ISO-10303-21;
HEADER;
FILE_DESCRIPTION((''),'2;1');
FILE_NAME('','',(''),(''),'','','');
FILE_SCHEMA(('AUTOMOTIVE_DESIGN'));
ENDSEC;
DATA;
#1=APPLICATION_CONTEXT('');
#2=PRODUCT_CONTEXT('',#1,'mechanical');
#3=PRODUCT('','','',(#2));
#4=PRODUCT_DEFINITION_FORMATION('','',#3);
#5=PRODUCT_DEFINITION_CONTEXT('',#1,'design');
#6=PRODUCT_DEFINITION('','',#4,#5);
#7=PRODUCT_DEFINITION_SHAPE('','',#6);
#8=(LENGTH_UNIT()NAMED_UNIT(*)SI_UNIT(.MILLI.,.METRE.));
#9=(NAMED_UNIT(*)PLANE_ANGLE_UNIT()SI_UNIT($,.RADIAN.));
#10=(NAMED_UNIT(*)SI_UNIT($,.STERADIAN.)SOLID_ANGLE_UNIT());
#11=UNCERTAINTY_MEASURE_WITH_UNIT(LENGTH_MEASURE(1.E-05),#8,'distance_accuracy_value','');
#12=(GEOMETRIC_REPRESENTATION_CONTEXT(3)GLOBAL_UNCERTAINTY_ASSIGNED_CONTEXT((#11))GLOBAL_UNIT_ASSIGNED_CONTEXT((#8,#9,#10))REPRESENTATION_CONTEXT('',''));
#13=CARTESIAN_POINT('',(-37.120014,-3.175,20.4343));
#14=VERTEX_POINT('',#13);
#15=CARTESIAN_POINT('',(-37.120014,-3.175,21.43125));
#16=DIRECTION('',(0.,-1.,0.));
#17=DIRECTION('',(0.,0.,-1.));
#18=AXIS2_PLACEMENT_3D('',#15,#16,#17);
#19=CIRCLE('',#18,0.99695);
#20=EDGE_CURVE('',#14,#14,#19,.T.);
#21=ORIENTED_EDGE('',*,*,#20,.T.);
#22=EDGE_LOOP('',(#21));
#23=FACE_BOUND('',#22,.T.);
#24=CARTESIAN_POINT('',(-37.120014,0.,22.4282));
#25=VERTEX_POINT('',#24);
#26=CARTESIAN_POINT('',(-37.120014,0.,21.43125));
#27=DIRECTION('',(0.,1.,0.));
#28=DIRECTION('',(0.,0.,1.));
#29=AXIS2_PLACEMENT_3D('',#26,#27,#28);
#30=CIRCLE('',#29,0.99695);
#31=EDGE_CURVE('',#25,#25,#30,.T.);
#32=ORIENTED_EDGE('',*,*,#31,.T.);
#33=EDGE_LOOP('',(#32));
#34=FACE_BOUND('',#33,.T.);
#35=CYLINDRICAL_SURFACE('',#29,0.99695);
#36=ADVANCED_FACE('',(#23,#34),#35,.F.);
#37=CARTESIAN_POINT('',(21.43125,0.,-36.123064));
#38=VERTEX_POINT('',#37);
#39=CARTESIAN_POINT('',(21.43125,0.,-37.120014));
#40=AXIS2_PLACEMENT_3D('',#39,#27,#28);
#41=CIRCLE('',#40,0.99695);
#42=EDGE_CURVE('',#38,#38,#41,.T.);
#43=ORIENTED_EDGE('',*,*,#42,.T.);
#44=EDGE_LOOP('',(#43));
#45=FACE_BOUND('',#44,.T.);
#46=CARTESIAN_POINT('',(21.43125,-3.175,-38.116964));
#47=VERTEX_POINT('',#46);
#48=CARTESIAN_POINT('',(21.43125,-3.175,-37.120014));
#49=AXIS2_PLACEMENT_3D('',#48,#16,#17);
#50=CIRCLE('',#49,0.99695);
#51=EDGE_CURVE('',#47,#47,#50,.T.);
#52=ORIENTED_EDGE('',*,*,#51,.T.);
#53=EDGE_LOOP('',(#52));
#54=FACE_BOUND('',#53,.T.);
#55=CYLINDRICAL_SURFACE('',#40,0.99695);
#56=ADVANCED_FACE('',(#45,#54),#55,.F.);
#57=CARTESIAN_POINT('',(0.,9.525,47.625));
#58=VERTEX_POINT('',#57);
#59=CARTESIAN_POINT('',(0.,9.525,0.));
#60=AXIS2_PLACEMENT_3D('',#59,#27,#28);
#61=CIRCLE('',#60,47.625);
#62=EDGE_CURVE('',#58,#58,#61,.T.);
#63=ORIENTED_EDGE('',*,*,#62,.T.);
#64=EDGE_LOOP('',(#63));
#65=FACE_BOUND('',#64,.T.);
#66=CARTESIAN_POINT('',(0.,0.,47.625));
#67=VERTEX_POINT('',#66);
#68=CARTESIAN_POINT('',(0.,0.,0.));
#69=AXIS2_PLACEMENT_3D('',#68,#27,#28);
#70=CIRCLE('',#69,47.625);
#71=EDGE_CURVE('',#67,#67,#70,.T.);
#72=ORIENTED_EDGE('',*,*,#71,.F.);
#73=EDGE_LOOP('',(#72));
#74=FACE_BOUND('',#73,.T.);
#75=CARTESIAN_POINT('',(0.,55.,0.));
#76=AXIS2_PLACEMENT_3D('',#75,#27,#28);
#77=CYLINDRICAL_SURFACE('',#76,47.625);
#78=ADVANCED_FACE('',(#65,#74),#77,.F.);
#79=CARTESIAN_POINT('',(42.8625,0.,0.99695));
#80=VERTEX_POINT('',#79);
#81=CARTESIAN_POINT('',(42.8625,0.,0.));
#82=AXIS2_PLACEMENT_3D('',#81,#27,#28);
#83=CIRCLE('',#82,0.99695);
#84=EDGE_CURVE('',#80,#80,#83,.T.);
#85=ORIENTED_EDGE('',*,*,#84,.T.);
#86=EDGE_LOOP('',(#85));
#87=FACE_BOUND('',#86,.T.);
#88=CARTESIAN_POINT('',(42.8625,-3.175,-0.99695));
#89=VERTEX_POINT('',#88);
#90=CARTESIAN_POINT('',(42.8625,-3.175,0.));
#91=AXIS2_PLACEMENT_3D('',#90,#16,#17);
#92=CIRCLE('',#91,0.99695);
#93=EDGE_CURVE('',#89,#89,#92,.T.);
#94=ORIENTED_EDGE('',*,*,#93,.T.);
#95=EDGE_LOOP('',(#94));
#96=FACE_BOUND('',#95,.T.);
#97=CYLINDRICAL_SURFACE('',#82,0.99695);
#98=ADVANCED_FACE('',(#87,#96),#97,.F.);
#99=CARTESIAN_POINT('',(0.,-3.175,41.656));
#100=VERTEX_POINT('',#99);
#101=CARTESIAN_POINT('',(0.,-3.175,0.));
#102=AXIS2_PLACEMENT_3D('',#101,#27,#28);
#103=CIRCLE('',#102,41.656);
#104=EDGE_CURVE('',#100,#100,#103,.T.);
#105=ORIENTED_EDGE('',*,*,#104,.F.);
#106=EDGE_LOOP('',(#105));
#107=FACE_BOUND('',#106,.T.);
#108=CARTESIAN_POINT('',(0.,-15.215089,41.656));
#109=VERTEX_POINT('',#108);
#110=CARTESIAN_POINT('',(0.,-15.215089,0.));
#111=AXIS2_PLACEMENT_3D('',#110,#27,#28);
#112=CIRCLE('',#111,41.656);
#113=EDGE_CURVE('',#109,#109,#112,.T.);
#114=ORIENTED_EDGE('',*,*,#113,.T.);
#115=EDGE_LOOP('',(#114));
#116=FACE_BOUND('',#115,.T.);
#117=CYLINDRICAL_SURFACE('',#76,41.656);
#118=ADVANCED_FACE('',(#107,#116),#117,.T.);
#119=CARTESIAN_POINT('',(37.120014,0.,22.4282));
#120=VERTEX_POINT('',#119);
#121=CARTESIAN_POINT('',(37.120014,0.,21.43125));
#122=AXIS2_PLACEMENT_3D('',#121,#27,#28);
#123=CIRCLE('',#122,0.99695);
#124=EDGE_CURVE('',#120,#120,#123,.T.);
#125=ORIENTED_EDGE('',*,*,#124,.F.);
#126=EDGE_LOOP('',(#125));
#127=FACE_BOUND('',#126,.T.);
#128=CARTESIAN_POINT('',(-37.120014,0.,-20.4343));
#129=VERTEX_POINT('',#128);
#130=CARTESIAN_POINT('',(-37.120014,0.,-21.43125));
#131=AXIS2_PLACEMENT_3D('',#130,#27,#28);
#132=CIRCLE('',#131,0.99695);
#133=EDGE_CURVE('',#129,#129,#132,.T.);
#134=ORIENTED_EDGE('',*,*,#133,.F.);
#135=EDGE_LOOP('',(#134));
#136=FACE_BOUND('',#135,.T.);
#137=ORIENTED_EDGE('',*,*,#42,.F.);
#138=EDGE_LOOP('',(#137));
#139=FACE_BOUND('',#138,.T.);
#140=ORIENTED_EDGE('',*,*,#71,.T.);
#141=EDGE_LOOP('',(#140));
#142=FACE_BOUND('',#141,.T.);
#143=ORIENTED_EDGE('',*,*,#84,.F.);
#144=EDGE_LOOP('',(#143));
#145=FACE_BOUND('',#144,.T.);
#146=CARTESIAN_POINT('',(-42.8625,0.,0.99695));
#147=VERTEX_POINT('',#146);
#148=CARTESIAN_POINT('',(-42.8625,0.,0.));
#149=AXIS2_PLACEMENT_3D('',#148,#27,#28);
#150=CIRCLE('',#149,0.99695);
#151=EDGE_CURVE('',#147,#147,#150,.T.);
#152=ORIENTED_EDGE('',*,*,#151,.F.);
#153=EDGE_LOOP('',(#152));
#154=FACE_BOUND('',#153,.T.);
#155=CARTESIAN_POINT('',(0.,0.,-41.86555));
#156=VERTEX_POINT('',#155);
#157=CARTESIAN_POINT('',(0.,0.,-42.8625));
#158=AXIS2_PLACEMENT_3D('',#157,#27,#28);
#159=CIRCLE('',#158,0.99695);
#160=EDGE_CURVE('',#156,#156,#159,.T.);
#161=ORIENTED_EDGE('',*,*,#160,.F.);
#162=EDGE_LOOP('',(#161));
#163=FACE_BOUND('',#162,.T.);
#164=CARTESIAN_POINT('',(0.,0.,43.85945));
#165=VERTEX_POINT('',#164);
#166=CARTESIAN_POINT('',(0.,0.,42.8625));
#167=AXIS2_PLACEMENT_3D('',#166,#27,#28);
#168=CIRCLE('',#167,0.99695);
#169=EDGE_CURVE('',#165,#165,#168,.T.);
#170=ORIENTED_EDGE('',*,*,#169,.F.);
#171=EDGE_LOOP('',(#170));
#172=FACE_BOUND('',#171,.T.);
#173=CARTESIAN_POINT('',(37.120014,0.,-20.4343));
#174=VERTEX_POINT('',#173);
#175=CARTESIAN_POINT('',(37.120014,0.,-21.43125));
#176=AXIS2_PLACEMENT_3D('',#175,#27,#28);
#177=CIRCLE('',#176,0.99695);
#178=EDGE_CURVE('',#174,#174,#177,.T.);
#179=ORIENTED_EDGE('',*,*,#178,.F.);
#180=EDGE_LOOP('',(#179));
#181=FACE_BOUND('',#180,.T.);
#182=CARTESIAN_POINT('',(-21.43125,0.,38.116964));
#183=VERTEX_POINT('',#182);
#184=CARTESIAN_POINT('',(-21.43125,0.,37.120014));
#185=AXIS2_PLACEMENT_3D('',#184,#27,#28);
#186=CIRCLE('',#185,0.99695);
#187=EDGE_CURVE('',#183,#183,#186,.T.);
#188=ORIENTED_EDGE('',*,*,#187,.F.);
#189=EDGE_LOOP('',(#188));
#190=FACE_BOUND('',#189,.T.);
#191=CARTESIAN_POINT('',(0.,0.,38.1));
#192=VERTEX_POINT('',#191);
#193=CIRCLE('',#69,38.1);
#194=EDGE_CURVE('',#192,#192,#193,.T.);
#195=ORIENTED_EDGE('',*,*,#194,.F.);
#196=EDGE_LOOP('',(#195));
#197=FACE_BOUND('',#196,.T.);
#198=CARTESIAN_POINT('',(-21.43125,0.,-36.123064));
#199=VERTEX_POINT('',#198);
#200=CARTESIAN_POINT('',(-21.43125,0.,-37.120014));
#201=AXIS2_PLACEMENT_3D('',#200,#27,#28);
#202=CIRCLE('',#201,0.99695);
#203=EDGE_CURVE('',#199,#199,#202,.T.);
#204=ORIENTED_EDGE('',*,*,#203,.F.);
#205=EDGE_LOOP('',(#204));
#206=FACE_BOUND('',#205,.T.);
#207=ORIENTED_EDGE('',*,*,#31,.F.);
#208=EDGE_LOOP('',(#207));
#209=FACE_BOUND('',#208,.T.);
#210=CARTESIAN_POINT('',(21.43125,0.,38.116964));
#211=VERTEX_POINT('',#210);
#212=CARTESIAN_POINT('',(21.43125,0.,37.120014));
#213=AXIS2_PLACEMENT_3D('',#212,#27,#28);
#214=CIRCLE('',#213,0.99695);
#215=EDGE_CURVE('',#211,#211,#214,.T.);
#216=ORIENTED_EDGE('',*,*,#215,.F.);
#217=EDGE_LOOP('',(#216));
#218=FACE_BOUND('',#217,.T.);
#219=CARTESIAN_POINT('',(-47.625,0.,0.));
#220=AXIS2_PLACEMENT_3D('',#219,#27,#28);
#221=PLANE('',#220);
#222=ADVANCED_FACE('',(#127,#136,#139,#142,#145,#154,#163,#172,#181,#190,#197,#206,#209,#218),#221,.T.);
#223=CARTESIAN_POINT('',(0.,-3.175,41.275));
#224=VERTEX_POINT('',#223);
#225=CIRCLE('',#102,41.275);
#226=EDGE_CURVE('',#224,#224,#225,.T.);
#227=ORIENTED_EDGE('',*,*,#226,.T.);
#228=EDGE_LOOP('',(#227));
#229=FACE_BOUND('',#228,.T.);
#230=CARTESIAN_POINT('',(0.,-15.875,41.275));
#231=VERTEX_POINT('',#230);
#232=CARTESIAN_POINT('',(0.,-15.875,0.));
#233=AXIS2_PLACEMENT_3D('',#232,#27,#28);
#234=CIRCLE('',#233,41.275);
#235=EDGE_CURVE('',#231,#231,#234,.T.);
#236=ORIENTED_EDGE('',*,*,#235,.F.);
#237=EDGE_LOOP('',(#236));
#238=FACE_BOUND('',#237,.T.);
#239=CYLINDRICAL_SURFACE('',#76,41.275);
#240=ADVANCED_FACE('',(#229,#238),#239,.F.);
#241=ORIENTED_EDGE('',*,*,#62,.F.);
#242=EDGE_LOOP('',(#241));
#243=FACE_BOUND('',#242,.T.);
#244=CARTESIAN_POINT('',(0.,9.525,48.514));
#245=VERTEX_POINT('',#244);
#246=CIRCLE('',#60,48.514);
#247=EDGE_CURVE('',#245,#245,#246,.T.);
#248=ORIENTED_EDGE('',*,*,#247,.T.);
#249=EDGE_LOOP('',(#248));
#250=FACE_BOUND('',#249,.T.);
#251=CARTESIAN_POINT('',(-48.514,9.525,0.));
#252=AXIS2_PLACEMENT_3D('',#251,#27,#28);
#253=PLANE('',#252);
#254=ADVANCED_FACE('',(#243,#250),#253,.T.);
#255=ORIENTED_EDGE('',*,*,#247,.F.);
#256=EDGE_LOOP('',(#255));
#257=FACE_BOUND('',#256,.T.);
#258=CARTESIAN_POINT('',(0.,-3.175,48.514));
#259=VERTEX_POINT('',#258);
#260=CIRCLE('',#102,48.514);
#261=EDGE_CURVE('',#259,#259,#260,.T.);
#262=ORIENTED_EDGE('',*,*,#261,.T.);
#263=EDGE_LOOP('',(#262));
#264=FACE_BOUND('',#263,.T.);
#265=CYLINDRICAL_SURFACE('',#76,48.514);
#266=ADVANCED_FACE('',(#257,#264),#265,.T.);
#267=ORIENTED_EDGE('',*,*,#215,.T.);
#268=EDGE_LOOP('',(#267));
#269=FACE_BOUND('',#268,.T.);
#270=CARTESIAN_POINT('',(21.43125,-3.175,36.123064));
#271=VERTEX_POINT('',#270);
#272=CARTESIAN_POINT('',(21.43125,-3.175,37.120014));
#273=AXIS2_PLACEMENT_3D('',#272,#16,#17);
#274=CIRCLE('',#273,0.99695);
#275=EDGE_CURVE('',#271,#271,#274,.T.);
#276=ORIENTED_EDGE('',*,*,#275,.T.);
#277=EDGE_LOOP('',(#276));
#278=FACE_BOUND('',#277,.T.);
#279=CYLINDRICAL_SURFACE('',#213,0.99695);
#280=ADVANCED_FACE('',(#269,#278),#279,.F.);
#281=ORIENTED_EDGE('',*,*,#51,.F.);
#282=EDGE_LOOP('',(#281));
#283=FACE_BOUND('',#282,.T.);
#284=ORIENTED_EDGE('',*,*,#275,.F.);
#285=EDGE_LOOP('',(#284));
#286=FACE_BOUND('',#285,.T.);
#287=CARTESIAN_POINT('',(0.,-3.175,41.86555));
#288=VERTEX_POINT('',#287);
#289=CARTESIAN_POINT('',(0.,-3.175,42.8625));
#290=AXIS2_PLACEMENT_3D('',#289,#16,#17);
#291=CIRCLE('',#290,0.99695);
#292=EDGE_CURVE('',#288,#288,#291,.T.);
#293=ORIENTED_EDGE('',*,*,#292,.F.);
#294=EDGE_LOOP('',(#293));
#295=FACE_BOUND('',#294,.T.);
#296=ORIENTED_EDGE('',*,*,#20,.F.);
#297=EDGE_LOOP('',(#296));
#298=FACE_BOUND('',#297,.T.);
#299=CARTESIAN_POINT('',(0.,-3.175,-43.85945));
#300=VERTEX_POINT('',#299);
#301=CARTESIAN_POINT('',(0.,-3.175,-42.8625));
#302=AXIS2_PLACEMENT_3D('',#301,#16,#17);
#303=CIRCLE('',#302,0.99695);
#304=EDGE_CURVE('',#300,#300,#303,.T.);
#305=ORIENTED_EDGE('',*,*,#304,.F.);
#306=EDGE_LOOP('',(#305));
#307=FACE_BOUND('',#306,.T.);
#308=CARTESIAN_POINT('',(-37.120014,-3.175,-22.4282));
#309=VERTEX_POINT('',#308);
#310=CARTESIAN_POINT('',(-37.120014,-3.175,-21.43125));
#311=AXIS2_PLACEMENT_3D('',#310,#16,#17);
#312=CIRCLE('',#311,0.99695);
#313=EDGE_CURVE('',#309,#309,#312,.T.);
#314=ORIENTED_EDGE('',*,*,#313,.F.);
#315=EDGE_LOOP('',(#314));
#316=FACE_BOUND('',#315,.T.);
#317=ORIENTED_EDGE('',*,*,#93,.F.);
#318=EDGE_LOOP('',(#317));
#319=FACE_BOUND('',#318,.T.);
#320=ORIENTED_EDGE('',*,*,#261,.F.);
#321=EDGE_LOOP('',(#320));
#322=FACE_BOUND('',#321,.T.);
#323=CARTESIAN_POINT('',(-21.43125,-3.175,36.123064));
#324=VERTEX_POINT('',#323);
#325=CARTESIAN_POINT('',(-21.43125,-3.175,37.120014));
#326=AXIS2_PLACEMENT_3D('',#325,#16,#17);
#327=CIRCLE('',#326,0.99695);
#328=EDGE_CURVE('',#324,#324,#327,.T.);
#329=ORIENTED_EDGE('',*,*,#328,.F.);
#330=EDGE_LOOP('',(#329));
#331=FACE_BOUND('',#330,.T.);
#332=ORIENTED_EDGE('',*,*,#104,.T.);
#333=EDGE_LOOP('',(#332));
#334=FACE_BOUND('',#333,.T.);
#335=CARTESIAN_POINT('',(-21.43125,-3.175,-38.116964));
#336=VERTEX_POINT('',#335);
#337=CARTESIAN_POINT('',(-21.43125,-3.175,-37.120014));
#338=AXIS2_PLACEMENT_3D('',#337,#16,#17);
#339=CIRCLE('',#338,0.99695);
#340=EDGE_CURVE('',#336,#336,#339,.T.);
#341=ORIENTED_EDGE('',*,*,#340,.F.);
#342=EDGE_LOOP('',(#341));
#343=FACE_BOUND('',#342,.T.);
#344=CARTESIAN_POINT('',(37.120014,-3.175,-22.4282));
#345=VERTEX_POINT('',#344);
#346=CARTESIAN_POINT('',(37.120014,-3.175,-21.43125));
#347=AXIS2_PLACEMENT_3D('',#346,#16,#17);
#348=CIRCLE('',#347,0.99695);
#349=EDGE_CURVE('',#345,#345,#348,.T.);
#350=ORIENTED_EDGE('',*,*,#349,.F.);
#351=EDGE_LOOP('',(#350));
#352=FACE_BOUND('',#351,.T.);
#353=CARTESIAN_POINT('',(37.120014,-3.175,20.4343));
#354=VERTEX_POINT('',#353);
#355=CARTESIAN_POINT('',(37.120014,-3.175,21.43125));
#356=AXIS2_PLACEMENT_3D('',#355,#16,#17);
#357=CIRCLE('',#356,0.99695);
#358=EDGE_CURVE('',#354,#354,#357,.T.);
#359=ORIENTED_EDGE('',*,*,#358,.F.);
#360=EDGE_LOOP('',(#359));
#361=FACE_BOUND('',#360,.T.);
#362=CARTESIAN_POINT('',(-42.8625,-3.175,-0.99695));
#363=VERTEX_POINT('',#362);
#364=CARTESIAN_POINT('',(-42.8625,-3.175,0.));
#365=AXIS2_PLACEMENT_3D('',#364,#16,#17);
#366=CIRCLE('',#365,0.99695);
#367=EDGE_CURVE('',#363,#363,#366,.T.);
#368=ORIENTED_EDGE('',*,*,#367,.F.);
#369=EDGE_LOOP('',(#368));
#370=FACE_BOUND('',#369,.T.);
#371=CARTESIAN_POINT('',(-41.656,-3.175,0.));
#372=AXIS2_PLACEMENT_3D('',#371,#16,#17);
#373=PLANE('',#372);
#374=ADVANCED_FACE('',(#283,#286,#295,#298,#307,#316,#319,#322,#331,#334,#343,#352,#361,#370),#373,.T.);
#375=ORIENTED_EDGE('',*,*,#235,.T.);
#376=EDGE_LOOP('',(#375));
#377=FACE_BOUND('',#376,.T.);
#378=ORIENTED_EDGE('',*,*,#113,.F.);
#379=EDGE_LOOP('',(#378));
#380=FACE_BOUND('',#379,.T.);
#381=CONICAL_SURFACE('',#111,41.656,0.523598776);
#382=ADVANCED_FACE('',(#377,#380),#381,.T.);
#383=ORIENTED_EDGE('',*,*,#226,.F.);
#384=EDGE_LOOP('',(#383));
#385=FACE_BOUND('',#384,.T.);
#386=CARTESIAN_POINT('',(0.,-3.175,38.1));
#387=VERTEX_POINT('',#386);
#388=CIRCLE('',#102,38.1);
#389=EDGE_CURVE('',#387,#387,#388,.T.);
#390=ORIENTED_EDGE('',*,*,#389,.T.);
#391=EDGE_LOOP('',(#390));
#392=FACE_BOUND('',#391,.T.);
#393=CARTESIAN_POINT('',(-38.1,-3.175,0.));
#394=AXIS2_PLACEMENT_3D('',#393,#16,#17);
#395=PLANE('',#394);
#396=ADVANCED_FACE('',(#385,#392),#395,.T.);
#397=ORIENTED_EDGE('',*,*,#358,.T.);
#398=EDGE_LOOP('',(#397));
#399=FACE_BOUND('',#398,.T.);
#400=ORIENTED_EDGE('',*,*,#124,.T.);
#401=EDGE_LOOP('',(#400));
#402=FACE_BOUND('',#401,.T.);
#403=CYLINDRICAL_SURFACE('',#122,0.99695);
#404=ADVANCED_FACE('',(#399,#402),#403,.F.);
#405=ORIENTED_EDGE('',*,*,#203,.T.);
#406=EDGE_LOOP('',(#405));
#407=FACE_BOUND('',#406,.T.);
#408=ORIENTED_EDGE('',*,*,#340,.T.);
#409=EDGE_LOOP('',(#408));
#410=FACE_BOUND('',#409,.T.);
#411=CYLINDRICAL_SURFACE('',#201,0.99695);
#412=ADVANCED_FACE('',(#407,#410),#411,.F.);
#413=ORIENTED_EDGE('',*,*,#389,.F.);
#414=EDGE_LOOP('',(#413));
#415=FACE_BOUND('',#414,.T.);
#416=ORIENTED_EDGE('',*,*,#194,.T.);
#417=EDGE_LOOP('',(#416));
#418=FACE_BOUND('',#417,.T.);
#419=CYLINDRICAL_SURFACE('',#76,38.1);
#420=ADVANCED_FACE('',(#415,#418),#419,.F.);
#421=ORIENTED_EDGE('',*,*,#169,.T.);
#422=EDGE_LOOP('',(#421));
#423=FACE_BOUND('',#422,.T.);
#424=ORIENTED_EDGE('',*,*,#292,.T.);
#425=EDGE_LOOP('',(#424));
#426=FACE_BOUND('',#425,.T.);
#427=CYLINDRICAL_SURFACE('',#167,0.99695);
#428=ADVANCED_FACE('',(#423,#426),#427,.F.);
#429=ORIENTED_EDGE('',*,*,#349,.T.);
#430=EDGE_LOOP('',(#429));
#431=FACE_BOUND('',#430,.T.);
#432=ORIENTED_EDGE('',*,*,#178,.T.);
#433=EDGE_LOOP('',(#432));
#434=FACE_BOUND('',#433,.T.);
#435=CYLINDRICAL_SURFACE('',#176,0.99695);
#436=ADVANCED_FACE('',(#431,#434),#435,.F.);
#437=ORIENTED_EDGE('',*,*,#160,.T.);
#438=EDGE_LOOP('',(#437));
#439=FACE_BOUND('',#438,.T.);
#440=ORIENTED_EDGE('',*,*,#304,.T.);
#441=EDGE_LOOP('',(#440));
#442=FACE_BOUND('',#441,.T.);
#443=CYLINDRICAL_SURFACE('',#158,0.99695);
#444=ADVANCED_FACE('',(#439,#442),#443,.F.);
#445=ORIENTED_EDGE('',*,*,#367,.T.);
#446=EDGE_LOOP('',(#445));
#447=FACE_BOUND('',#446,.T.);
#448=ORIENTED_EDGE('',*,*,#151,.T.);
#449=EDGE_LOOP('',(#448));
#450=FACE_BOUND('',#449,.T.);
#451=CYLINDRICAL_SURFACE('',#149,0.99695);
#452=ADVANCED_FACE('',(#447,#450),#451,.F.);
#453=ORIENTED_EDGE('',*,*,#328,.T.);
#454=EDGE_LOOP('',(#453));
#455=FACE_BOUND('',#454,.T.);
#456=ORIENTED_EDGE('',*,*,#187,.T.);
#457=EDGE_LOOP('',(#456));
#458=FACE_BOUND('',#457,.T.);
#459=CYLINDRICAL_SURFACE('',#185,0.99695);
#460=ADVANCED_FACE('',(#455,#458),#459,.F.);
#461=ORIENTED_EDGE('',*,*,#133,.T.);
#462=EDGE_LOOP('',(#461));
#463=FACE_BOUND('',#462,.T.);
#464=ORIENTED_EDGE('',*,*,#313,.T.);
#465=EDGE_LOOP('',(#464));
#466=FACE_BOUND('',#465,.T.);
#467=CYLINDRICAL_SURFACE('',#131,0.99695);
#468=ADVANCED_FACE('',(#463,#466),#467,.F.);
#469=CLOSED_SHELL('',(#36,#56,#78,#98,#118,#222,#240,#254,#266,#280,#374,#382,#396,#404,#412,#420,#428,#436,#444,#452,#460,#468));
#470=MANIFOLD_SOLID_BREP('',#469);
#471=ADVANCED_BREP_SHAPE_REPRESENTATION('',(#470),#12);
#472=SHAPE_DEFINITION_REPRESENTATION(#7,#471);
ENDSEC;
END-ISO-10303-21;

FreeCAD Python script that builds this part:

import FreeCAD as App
import Part
import Sketcher

V = App.Vector
Q = App.Units.Quantity

doc = App.newDocument("Part")
body = doc.addObject("PartDesign::Body", "Body")

sketch1 = body.newObject("Sketcher::SketchObject", "Sketch")
sketch1.AttachmentSupport = (doc.getObject("XY_Plane"), [""])
sketch1.MapMode = "FlatFace"
sketch1.addGeometry(Part.LineSegment(V(-38.1, -3.175, 0), V(-38.1, 0, 0)), False)
sketch1.addGeometry(Part.LineSegment(V(-38.1, 0, 0), V(-47.625, 0, 0)), False)
sketch1.addGeometry(Part.LineSegment(V(-47.625, 0, 0), V(-47.625, 9.525, 0)), False)
sketch1.addGeometry(Part.LineSegment(V(-47.625, 9.525, 0), V(-48.514, 9.525, 0)), False)
sketch1.addGeometry(Part.LineSegment(V(-48.514, 9.525, 0), V(-48.514, -3.175, 0)), False)
sketch1.addGeometry(Part.LineSegment(V(-48.514, -3.175, 0), V(-41.656, -3.175, 0)), False)
sketch1.addGeometry(Part.LineSegment(V(-41.656, -3.175, 0), V(-41.656, -15.215089, 0)), False)
sketch1.addGeometry(Part.LineSegment(V(-41.656, -15.215089, 0), V(-41.275, -15.875, 0)), False)
sketch1.addGeometry(Part.LineSegment(V(-41.275, -15.875, 0), V(-41.275, -3.175, 0)), False)
sketch1.addGeometry(Part.LineSegment(V(-41.275, -3.175, 0), V(-38.1, -3.175, 0)), False)
sketch1.addConstraint(Sketcher.Constraint("Coincident", 0, 2, 1, 1))
sketch1.addConstraint(Sketcher.Constraint("Coincident", 1, 2, 2, 1))
sketch1.addConstraint(Sketcher.Constraint("Coincident", 2, 2, 3, 1))
sketch1.addConstraint(Sketcher.Constraint("Coincident", 3, 2, 4, 1))
sketch1.addConstraint(Sketcher.Constraint("Coincident", 4, 2, 5, 1))
sketch1.addConstraint(Sketcher.Constraint("Coincident", 5, 2, 6, 1))
sketch1.addConstraint(Sketcher.Constraint("Coincident", 6, 2, 7, 1))
sketch1.addConstraint(Sketcher.Constraint("Coincident", 7, 2, 8, 1))
sketch1.addConstraint(Sketcher.Constraint("Coincident", 8, 2, 9, 1))
sketch1.addConstraint(Sketcher.Constraint("Coincident", 9, 2, 0, 1))
sketch1.addConstraint(Sketcher.Constraint("Vertical", 0))
sketch1.addConstraint(Sketcher.Constraint("Horizontal", 1))
sketch1.addConstraint(Sketcher.Constraint("Vertical", 2))
sketch1.addConstraint(Sketcher.Constraint("Horizontal", 3))
sketch1.addConstraint(Sketcher.Constraint("Vertical", 4))
sketch1.addConstraint(Sketcher.Constraint("Horizontal", 5))
sketch1.addConstraint(Sketcher.Constraint("Vertical", 6))
sketch1.addConstraint(Sketcher.Constraint("Vertical", 8))
sketch1.addConstraint(Sketcher.Constraint("Horizontal", 9))
sketch1.addConstraint(Sketcher.Constraint("PointOnObject", 0, 2, -1))
sketch1.addConstraint(Sketcher.Constraint("Horizontal", 5, 2, 8, 2))
sketch1.addConstraint(Sketcher.Constraint("Equal", 9, 0))
sketch1.addConstraint(Sketcher.Constraint("Equal", 1, 2))
sketch1.addConstraint(Sketcher.Constraint("Equal", 4, 8))
sketch1.addConstraint(Sketcher.Constraint("DistanceY", 4, 2, 4, 1, Q("0.5 in")))
sketch1.addConstraint(Sketcher.Constraint("Angle", 7, Q("-60 deg")))
sketch1.addConstraint(Sketcher.Constraint("DistanceX", 5, 1, 5, 2, Q("0.27 in")))
sketch1.addConstraint(Sketcher.Constraint("DistanceX", 0, 2, -1, 1, Q("1.5 in")))
sketch1.addConstraint(Sketcher.Constraint("Distance", 7, Q("0.03 in")))
sketch1.addConstraint(Sketcher.Constraint("DistanceX", 1, 2, 1, 1, Q("0.375 in")))
revolution = body.newObject("PartDesign::Revolution", "Revolution")
revolution.Profile = sketch1
revolution.ReferenceAxis = (sketch1, ["V_Axis"])
revolution.Angle = 360

sketch2 = body.newObject("Sketcher::SketchObject", "Sketch001")
sketch2.AttachmentSupport = (doc.getObject("YZ_Plane"), [""])
sketch2.MapMode = "FlatFace"
sketch2.AttachmentOffset = App.Placement(V(0, 0, -1.6875 * 25.4), App.Rotation())
sketch2.addGeometry(Part.LineSegment(V(-3.901028, 0, 0), V(0, 0, 0)), False)
sketch2.addGeometry(Part.LineSegment(V(0, 0, 0), V(0, 0.99695, 0)), False)
sketch2.addGeometry(Part.LineSegment(V(0, 0.99695, 0), V(-3.302, 0.99695, 0)), False)
sketch2.addGeometry(Part.LineSegment(V(-3.302, 0.99695, 0), V(-3.901028, 0, 0)), False)
sketch2.addConstraint(Sketcher.Constraint("Coincident", 0, 2, 1, 1))
sketch2.addConstraint(Sketcher.Constraint("Coincident", 1, 2, 2, 1))
sketch2.addConstraint(Sketcher.Constraint("Coincident", 2, 2, 3, 1))
sketch2.addConstraint(Sketcher.Constraint("Coincident", 3, 2, 0, 1))
sketch2.addConstraint(Sketcher.Constraint("Horizontal", 0))
sketch2.addConstraint(Sketcher.Constraint("Vertical", 1))
sketch2.addConstraint(Sketcher.Constraint("Horizontal", 2))
sketch2.addConstraint(Sketcher.Constraint("Coincident", 0, 2, -1, 1))
sketch2.addConstraint(Sketcher.Constraint("Angle", 3, Q("-121 deg")))
sketch2.addConstraint(Sketcher.Constraint("DistanceX", 2, 2, 2, 1, Q("0.13 in")))
sketch2.addConstraint(Sketcher.Constraint("DistanceY", 1, 1, 1, 2, Q("0.99695 mm")))
groove = body.newObject("PartDesign::Groove", "Groove")
groove.Profile = sketch2
groove.ReferenceAxis = (sketch2, ["H_Axis"])
groove.Angle = 360
doc.recompute()

polarpattern = body.newObject("PartDesign::PolarPattern", "PolarPattern")
polarpattern.Originals = [groove]
polarpattern.Axis = (doc.getObject("Y_Axis"), [""])
polarpattern.Angle = 360
polarpattern.Occurrences = 12
body.Tip = polarpattern

doc.recompute()
